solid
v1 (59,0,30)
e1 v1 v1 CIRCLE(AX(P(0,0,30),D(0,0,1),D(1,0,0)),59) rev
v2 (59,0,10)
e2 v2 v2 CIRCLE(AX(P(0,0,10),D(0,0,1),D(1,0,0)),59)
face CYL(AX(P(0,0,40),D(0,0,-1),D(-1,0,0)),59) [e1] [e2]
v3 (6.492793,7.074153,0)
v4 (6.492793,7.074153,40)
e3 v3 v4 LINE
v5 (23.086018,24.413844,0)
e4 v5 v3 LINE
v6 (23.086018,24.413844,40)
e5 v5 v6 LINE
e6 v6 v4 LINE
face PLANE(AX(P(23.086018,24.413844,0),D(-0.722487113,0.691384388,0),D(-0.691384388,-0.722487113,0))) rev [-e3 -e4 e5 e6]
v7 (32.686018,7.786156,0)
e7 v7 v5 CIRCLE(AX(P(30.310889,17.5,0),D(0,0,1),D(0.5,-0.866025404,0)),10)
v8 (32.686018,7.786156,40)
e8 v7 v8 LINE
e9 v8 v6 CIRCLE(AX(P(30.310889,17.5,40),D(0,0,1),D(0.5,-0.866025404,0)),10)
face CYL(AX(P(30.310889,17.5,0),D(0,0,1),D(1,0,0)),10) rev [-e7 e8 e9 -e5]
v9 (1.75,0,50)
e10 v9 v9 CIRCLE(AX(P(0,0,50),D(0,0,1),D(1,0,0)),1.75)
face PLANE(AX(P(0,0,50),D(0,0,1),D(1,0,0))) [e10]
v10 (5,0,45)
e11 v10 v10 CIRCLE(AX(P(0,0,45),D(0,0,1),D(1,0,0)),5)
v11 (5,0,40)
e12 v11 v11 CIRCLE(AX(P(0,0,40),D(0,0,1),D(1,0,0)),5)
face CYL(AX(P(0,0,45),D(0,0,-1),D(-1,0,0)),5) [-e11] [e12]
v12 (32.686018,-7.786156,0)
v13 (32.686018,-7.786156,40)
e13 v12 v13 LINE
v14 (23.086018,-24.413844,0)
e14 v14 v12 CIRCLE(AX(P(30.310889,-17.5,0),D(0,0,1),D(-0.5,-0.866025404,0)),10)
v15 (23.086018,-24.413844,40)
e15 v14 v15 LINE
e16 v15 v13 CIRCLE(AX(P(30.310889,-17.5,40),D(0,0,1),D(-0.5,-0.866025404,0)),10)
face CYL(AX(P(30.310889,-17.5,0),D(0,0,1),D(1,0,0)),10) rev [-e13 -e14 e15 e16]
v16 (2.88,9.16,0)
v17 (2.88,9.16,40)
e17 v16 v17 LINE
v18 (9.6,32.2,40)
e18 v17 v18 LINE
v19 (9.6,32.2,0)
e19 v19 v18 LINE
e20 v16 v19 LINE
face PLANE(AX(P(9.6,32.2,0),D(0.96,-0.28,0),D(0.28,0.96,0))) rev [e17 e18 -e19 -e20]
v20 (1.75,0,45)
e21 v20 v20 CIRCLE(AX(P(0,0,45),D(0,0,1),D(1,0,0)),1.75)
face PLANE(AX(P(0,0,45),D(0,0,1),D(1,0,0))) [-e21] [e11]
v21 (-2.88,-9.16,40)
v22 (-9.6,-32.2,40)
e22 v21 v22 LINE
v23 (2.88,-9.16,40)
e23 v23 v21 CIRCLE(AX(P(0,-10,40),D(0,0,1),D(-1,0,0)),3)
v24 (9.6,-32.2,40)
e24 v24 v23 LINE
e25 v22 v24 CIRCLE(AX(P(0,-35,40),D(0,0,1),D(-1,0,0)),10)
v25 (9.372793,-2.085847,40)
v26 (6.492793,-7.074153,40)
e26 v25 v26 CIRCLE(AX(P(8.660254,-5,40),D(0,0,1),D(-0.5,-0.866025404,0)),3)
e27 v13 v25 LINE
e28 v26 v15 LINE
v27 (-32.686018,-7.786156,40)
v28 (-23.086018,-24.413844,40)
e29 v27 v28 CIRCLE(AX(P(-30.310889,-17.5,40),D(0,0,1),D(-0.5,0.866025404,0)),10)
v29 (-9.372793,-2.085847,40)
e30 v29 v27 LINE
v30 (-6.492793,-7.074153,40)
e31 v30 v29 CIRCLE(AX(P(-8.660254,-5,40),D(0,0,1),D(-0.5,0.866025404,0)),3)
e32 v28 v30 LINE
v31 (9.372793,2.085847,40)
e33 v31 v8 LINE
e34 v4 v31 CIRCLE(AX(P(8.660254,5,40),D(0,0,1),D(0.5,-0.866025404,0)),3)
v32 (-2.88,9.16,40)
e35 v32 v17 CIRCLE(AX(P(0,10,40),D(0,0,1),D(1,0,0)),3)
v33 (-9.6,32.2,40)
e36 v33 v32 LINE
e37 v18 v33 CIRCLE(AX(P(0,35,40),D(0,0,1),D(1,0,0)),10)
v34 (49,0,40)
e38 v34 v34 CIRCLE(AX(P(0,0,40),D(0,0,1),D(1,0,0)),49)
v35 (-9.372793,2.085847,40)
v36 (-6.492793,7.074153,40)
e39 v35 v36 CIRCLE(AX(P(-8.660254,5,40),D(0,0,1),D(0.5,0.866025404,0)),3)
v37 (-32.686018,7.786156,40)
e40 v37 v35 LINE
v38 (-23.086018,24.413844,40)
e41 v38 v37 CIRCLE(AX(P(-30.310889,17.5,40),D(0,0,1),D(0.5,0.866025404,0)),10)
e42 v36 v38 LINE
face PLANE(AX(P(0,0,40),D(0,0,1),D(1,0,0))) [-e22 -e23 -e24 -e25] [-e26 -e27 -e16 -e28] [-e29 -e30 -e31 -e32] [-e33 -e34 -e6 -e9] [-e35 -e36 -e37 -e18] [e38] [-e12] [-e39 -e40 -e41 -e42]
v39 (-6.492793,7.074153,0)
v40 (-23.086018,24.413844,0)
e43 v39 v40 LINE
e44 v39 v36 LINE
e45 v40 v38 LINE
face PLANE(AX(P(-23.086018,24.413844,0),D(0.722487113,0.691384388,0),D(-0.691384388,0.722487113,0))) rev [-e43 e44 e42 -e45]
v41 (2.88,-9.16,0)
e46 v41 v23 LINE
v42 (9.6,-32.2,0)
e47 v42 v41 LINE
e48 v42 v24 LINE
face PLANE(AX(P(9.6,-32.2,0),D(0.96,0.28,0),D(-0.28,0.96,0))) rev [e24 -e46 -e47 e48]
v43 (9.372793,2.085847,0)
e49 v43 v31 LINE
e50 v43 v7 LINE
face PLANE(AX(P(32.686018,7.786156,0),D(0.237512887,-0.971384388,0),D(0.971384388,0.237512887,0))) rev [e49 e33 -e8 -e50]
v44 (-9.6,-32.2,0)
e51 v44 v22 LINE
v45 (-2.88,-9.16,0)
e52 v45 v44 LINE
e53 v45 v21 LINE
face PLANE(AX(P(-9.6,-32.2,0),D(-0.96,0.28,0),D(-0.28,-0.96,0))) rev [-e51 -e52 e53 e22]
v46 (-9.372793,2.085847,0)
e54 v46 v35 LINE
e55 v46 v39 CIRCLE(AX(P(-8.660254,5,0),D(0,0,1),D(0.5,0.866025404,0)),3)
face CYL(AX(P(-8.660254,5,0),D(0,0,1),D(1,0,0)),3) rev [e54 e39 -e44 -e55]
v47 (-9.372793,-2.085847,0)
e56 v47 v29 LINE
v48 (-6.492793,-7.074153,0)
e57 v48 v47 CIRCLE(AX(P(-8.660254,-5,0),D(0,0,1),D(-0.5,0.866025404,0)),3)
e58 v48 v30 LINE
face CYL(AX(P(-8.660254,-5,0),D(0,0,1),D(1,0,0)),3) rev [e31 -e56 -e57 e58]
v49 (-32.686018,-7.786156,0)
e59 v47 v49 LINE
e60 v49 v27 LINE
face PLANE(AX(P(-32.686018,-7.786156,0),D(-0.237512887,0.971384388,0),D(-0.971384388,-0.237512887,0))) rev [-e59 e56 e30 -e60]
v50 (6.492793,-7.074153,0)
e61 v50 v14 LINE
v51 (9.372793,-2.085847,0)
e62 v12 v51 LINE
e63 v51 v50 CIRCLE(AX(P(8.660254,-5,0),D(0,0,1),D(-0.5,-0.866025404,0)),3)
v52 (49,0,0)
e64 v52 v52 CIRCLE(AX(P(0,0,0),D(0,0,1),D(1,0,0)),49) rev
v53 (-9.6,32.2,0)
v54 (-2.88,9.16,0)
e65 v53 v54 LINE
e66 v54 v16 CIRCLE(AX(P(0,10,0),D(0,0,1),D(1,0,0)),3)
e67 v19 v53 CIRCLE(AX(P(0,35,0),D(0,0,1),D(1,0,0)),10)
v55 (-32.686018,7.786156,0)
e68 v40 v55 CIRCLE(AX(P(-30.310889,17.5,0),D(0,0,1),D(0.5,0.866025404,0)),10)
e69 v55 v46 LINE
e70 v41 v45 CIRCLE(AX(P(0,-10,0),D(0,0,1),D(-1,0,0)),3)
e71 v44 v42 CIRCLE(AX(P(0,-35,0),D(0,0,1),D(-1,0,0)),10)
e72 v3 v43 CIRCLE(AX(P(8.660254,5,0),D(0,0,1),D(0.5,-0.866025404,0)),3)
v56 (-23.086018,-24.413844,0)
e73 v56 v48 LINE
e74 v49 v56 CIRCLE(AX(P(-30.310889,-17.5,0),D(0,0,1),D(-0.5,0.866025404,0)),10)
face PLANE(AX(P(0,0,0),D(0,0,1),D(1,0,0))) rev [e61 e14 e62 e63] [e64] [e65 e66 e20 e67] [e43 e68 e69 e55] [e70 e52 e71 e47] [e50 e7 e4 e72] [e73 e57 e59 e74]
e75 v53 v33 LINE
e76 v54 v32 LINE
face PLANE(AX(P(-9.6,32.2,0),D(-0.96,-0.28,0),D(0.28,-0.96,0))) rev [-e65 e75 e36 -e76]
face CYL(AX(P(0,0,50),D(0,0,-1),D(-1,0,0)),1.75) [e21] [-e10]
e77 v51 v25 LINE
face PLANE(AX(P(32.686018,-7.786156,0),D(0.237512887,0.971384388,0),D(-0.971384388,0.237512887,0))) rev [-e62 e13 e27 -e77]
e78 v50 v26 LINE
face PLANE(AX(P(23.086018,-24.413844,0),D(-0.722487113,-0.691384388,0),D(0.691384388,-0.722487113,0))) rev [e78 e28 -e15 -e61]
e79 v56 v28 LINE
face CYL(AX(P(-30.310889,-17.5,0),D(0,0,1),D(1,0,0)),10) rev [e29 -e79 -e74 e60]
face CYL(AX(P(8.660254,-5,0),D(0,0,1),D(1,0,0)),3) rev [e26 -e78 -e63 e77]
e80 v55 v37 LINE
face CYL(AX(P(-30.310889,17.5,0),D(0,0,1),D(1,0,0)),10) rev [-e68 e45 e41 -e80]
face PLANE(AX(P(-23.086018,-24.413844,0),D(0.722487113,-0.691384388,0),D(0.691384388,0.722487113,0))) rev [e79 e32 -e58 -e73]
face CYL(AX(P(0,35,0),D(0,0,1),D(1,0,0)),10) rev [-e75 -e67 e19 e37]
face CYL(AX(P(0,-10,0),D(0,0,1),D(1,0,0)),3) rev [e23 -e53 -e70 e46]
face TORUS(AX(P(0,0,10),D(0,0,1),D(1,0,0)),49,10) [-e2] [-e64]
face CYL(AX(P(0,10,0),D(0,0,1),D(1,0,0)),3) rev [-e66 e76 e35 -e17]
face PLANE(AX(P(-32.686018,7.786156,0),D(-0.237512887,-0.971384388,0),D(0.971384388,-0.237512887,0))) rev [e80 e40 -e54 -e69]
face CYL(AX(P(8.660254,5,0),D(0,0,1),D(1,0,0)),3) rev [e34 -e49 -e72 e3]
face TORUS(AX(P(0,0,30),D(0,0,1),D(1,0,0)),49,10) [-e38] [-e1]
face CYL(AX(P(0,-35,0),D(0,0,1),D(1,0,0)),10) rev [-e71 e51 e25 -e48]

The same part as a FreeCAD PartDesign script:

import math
import FreeCAD as App
import Part
import Sketcher


def edges_at(feature, points):
    """Names of the edges that pass closest to the given points."""
    edges = feature.Shape.Edges
    near = lambda p: min(range(len(edges)), key=lambda i: edges[i].distToShape(Part.Vertex(*p))[0])
    return sorted({f"Edge{near(p) + 1}" for p in points})

doc = App.newDocument("Part")
body = doc.addObject("PartDesign::Body", "Body")

# Sketch on XY plane
sketch1 = body.newObject("Sketcher::SketchObject", "Sketch")
sketch1.AttachmentSupport = (doc.getObject("XY_Plane"), [""])
sketch1.MapMode = "FlatFace"
sketch1.addGeometry(Part.Circle(App.Vector(0, 0, 0), App.Vector(0, 0, 1), 59), False)
sketch1.addConstraint([
    Sketcher.Constraint("Coincident", 0, 3, -1, 1),
    Sketcher.Constraint("Diameter", 0, 118.0),
])
pad1 = body.newObject("PartDesign::Pad", "Pad")
pad1.Profile = sketch1
pad1.Length = 40
doc.recompute()

fillet = body.newObject("PartDesign::Fillet", "Fillet")
fillet.Base = (pad1, edges_at(pad1, [(-59, 0, 0), (-59, 0, 40)]))
fillet.Radius = 10

# Sketch on XY plane
sketch2 = body.newObject("Sketcher::SketchObject", "Sketch001")
sketch2.AttachmentSupport = (doc.getObject("XY_Plane"), [""])
sketch2.MapMode = "FlatFace"
sketch2.AttachmentOffset = App.Placement(App.Vector(0, 0, 40), App.Rotation())
sketch2.addGeometry(Part.Circle(App.Vector(0, 0, 0), App.Vector(0, 0, 1), 5), False)
sketch2.addConstraint([
    Sketcher.Constraint("Coincident", 0, 3, -1, 1),
    Sketcher.Constraint("Diameter", 0, 10.0),
])
pad2 = body.newObject("PartDesign::Pad", "Pad001")
pad2.Profile = sketch2
pad2.Length = 5

# Sketch on XY plane
sketch3 = body.newObject("Sketcher::SketchObject", "Sketch002")
sketch3.AttachmentSupport = (doc.getObject("XY_Plane"), [""])
sketch3.MapMode = "FlatFace"
sketch3.AttachmentOffset = App.Placement(App.Vector(0, 0, 45), App.Rotation())
sketch3.addGeometry(Part.Circle(App.Vector(0, 0, 0), App.Vector(0, 0, 1), 1.75), False)
sketch3.addConstraint([
    Sketcher.Constraint("Coincident", 0, 3, -1, 1),
    Sketcher.Constraint("Diameter", 0, 3.5),
])
pad3 = body.newObject("PartDesign::Pad", "Pad002")
pad3.Profile = sketch3
pad3.Length = 5

# Sketch on XY plane
sketch4 = body.newObject("Sketcher::SketchObject", "Sketch003")
sketch4.AttachmentSupport = (doc.getObject("XY_Plane"), [""])
sketch4.MapMode = "FlatFace"
sketch4.AttachmentOffset = App.Placement(App.Vector(0, 0, 40), App.Rotation())
sketch4.addGeometry([
    Part.LineSegment(App.Vector(-9.6, 32.2, 0), App.Vector(-2.88, 9.16, 0)),
    Part.ArcOfCircle(Part.Circle(App.Vector(0, 10, 0), App.Vector(0, 0, 1), 3), math.radians(-163.739795), math.radians(-16.260205)),
    Part.LineSegment(App.Vector(2.88, 9.16, 0), App.Vector(9.6, 32.2, 0)),
    Part.ArcOfCircle(Part.Circle(App.Vector(0, 35, 0), App.Vector(0, 0, 1), 10), math.radians(-16.260205), math.radians(196.260205)),
], False)
sketch4.addConstraint([
    Sketcher.Constraint("Tangent", 0, 2, 1, 1),
    Sketcher.Constraint("Tangent", 1, 2, 2, 1),
    Sketcher.Constraint("Tangent", 2, 2, 3, 1),
    Sketcher.Constraint("Tangent", 3, 2, 0, 1),
    Sketcher.Constraint("Symmetric", 0, 2, 1, 2, -2),
    Sketcher.Constraint("Radius", 1, 3.0),
    Sketcher.Constraint("Radius", 3, 10.0),
    Sketcher.Constraint("Distance", 0, 24.0),
    Sketcher.Constraint("DistanceY", -1, 1, 1, 3, 10.0),
])
pocket1 = body.newObject("PartDesign::Pocket", "Pocket")
pocket1.Profile = sketch4
pocket1.Type = "ThroughAll"
doc.recompute()

polarpattern = body.newObject("PartDesign::PolarPattern", "PolarPattern")
polarpattern.Originals = [pocket1]
polarpattern.Axis = (doc.getObject("Z_Axis"), [""])
polarpattern.Angle = 360
polarpattern.Occurrences = 6
body.Tip = polarpattern

doc.recompute()
